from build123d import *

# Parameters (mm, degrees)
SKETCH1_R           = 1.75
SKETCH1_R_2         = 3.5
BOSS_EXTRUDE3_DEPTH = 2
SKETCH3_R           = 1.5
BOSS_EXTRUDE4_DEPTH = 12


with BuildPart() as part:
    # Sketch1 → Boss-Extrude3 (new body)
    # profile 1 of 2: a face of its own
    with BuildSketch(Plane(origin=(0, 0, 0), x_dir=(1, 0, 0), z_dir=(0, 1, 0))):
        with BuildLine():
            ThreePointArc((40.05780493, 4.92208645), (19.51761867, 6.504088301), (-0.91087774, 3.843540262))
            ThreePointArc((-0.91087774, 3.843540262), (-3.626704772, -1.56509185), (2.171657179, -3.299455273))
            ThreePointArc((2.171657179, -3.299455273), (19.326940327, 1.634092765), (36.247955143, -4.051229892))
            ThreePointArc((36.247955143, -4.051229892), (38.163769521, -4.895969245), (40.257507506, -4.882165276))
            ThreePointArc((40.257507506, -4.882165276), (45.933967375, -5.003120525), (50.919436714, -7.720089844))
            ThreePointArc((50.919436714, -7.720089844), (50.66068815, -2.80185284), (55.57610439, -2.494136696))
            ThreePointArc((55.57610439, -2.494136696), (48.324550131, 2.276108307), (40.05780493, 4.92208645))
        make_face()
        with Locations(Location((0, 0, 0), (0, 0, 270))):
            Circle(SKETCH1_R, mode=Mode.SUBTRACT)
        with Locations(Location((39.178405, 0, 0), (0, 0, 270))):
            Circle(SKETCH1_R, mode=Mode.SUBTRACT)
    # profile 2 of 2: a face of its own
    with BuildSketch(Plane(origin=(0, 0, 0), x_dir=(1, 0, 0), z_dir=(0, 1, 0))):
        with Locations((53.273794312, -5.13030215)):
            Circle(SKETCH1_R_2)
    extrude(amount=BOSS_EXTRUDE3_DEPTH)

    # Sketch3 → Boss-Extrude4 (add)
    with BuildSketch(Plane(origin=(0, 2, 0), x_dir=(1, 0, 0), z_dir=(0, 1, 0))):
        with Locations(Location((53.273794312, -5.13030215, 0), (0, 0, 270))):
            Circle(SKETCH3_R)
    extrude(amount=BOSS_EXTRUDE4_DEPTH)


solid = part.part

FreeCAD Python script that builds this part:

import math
import FreeCAD as App
import Part
import Sketcher
from FreeCAD import Vector
Q = App.Units.Quantity

doc = App.newDocument("Part")
body = doc.addObject("PartDesign::Body", "Body")

# Sketch on XZ plane
sketch1 = body.newObject("Sketcher::SketchObject", "Sketch")
sketch1.AttachmentSupport = (doc.getObject("XZ_Plane"), [""])
sketch1.MapMode = "FlatFace"
sketch1.addGeometry(Part.ArcOfCircle(Part.Circle(Vector(22.1, 93.5, 0), Vector(0, 0, 1), 100), math.radians(-103), math.radians(-80)), False)
sketch1.addGeometry(Part.ArcOfCircle(Part.Circle(Vector(0, 0, 0), Vector(0, 0, 1), 4), math.radians(57), math.radians(257)), False)
sketch1.addGeometry(Part.ArcOfCircle(Part.Circle(Vector(18.7, 28.4, 0), Vector(0, 0, 1), 30), math.radians(-123), math.radians(-54)), False)
sketch1.addGeometry(Part.ArcOfCircle(Part.Circle(Vector(39.2, 0, 0), Vector(0, 0, 1), 5), math.radians(78), math.radians(126)), False)
sketch1.addGeometry(Part.ArcOfCircle(Part.Circle(Vector(42.8, 16.6, 0), Vector(0, 0, 1), 12), math.radians(-102), math.radians(-48)), False)
sketch1.addGeometry(Part.ArcOfCircle(Part.Circle(Vector(53.3, 5.1, 0), Vector(0, 0, 1), 3.5), math.radians(-49), math.radians(132)), False)
sketch1.addGeometry(Part.ArcOfCircle(Part.Circle(Vector(34.5, 26.6, 0), Vector(0, 0, 1), 32), math.radians(-80), math.radians(-49)), False)
sketch1.addGeometry(Part.Circle(Vector(0, 0, 0), Vector(0, 0, 1), 1.8), False)
sketch1.addGeometry(Part.Circle(Vector(39.2, 0, 0), Vector(0, 0, 1), 1.8), False)
sketch1.addConstraint(Sketcher.Constraint("Tangent", 0, 1, 1, 2))
sketch1.addConstraint(Sketcher.Constraint("Tangent", 1, 1, 2, 1))
sketch1.addConstraint(Sketcher.Constraint("Tangent", 2, 2, 3, 2))
sketch1.addConstraint(Sketcher.Constraint("Tangent", 3, 1, 4, 1))
sketch1.addConstraint(Sketcher.Constraint("Tangent", 4, 2, 5, 2))
sketch1.addConstraint(Sketcher.Constraint("Tangent", 5, 1, 6, 2))
sketch1.addConstraint(Sketcher.Constraint("Coincident", 6, 1, 0, 2))
sketch1.addConstraint(Sketcher.Constraint("Coincident", 1, 3, -1, 1))
sketch1.addConstraint(Sketcher.Constraint("Coincident", 7, 3, -1, 1))
sketch1.addConstraint(Sketcher.Constraint("Coincident", 8, 3, 3, 3))
sketch1.addConstraint(Sketcher.Constraint("Equal", 7, 8))
sketch1.addConstraint(Sketcher.Constraint("PointOnObject", 3, 3, -1))
sketch1.addConstraint(Sketcher.Constraint("Radius", 0, Q("100 mm")))
sketch1.addConstraint(Sketcher.Constraint("Radius", 2, Q("30 mm")))
sketch1.addConstraint(Sketcher.Constraint("Radius", 3, Q("5 mm")))
sketch1.addConstraint(Sketcher.Constraint("Radius", 4, Q("12 mm")))
sketch1.addConstraint(Sketcher.Constraint("Radius", 6, Q("32 mm")))
sketch1.addConstraint(Sketcher.Constraint("Diameter", 7, Q("3.5 mm")))
sketch1.addConstraint(Sketcher.Constraint("Radius", 5, Q("3.5 mm")))
sketch1.addConstraint(Sketcher.Constraint("Radius", 1, Q("3.95 mm")))
sketch1.addConstraint(Sketcher.Constraint("DistanceX", 1, 1, 2, 3, Q("16.493599 mm")))
sketch1.addConstraint(Sketcher.Constraint("DistanceX", 2, 2, 4, 3, Q("6.599398 mm")))
sketch1.addConstraint(Sketcher.Constraint("DistanceX", 8, 3, 5, 1, Q("16.397699 mm")))
sketch1.addConstraint(Sketcher.Constraint("DistanceX", 8, 3, 6, 1, Q("0.8794 mm")))
sketch1.addConstraint(Sketcher.Constraint("DistanceX", -1, 1, 0, 3, Q("22.149318 mm")))
pad1 = body.newObject("PartDesign::Pad", "Pad")
pad1.Profile = sketch1
pad1.Length = 2
pad1.Reversed = True

# Sketch on XZ plane
sketch2 = body.newObject("Sketcher::SketchObject", "Sketch001")
sketch2.AttachmentSupport = (doc.getObject("XZ_Plane"), [""])
sketch2.MapMode = "FlatFace"
sketch2.AttachmentOffset = App.Placement(Vector(0, 0, -2), App.Rotation())
sketch2.addGeometry(Part.Circle(Vector(53.3, 5.1, 0), Vector(0, 0, 1), 1.5), False)
sketch2.addConstraint(Sketcher.Constraint("Diameter", 0, Q("3 mm")))
sketch2.addConstraint(Sketcher.Constraint("DistanceX", -1, 1, 0, 3, Q("53.273794 mm")))
sketch2.addConstraint(Sketcher.Constraint("DistanceY", -1, 1, 0, 3, Q("5.130302 mm")))
pad2 = body.newObject("PartDesign::Pad", "Pad001")
pad2.Profile = sketch2
pad2.Length = 12
pad2.Reversed = True

doc.recompute()
